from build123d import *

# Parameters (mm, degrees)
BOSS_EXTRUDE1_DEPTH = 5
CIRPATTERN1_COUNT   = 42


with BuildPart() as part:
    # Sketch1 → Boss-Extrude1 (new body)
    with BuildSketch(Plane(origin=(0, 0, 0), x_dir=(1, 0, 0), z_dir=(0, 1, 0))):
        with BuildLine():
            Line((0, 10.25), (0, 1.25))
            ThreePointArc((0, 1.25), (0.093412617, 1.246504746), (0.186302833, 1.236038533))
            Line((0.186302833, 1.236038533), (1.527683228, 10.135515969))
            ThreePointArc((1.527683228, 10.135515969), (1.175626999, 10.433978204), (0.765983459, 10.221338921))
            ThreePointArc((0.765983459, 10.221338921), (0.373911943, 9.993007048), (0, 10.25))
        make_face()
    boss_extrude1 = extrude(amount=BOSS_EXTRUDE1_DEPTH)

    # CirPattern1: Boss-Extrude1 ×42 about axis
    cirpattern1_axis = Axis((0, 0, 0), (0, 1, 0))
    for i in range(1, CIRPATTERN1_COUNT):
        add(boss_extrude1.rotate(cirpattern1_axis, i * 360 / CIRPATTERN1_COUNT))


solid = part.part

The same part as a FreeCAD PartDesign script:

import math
import FreeCAD as App
import Part
import Sketcher

V = App.Vector

doc = App.newDocument("Part")
params = doc.addObject("Spreadsheet::Sheet", "Params")
for row, (alias, value) in enumerate([
    ("sketch1_height", "9 mm"),
    ("sketch1_radius", "1.25 mm"),
    ("sketch1_length", "9 mm"),
    ("pad1_length", "5 mm"),
], start=1):
    params.set(f"A{row}", alias)
    params.set(f"B{row}", "=" + value)
    params.setAlias(f"B{row}", alias)

body = doc.addObject("PartDesign::Body", "Body")

# Sketch on XZ plane
sketch1 = body.newObject("Sketcher::SketchObject", "Sketch")
sketch1.AttachmentSupport = (doc.getObject("XZ_Plane"), [""])
sketch1.MapMode = "FlatFace"
sketch1.addGeometry([
    Part.LineSegment(V(0, -10.25, 0), V(0, -1.25, 0)),  # 0
    Part.ArcOfCircle(Part.Circle(V(0, 0, 0), V(0, 0, 1), 1.25), math.radians(-89.999999), math.radians(-81.428572)),  # 1
    Part.LineSegment(V(0.186303, -1.236039, 0), V(1.527683, -10.135516, 0)),  # 2
    Part.ArcOfCircle(Part.Circle(V(1.129254, -10.022411, 0), V(0, 0, 1), 0.414172), math.radians(-151.294752), math.radians(-15.848105)),  # 3
    Part.ArcOfCircle(Part.Circle(V(0.389761, -10.416574, 0), V(0, 0, 1), 0.423864), math.radians(27.426408), math.radians(156.859306)),  # 4
], False)
sketch1.addConstraint([
    Sketcher.Constraint("Coincident", 0, 2, 1, 1),
    Sketcher.Constraint("Coincident", 1, 2, 2, 1),
    Sketcher.Constraint("Coincident", 2, 2, 3, 2),
    Sketcher.Constraint("Coincident", 3, 1, 4, 1),
    Sketcher.Constraint("Coincident", 4, 2, 0, 1),
    Sketcher.Constraint("Vertical", 0),
    Sketcher.Constraint("Coincident", 1, 3, -1, 1),
    Sketcher.Constraint("PointOnObject", 0, 2, -2),
    Sketcher.Constraint("DistanceY", 0, 1, 0, 2, 9.0),
    Sketcher.Constraint("Radius", 1, 1.25),
    Sketcher.Constraint("Distance", 2, 9.0),
    Sketcher.Constraint("Radius", 3, 0.414172),
    Sketcher.Constraint("Radius", 4, 0.423864),
    Sketcher.Constraint("DistanceX", 3, 1, 2, 2, 0.7617),
    Sketcher.Constraint("DistanceY", 3, 1, 1, 2, 8.9853),
    Sketcher.Constraint("DistanceY", 3, 3, -1, 1, 10.022411),
    Sketcher.Constraint("DistanceX", -1, 1, 4, 3, 0.389761),
])
sketch1.setExpression("Constraints[8]", "Params.sketch1_height")
sketch1.setExpression("Constraints[9]", "Params.sketch1_radius")
sketch1.setExpression("Constraints[10]", "Params.sketch1_length")
pad1 = body.newObject("PartDesign::Pad", "Pad")
pad1.Profile = sketch1
pad1.setExpression("Length", "Params.pad1_length")
pad1.Reversed = True
doc.recompute()

polarpattern = body.newObject("PartDesign::PolarPattern", "PolarPattern")
polarpattern.Originals = [pad1]
polarpattern.Axis = (doc.getObject("Y_Axis"), [""])
polarpattern.Angle = 360
polarpattern.Occurrences = 42
body.Tip = polarpattern

doc.recompute()
